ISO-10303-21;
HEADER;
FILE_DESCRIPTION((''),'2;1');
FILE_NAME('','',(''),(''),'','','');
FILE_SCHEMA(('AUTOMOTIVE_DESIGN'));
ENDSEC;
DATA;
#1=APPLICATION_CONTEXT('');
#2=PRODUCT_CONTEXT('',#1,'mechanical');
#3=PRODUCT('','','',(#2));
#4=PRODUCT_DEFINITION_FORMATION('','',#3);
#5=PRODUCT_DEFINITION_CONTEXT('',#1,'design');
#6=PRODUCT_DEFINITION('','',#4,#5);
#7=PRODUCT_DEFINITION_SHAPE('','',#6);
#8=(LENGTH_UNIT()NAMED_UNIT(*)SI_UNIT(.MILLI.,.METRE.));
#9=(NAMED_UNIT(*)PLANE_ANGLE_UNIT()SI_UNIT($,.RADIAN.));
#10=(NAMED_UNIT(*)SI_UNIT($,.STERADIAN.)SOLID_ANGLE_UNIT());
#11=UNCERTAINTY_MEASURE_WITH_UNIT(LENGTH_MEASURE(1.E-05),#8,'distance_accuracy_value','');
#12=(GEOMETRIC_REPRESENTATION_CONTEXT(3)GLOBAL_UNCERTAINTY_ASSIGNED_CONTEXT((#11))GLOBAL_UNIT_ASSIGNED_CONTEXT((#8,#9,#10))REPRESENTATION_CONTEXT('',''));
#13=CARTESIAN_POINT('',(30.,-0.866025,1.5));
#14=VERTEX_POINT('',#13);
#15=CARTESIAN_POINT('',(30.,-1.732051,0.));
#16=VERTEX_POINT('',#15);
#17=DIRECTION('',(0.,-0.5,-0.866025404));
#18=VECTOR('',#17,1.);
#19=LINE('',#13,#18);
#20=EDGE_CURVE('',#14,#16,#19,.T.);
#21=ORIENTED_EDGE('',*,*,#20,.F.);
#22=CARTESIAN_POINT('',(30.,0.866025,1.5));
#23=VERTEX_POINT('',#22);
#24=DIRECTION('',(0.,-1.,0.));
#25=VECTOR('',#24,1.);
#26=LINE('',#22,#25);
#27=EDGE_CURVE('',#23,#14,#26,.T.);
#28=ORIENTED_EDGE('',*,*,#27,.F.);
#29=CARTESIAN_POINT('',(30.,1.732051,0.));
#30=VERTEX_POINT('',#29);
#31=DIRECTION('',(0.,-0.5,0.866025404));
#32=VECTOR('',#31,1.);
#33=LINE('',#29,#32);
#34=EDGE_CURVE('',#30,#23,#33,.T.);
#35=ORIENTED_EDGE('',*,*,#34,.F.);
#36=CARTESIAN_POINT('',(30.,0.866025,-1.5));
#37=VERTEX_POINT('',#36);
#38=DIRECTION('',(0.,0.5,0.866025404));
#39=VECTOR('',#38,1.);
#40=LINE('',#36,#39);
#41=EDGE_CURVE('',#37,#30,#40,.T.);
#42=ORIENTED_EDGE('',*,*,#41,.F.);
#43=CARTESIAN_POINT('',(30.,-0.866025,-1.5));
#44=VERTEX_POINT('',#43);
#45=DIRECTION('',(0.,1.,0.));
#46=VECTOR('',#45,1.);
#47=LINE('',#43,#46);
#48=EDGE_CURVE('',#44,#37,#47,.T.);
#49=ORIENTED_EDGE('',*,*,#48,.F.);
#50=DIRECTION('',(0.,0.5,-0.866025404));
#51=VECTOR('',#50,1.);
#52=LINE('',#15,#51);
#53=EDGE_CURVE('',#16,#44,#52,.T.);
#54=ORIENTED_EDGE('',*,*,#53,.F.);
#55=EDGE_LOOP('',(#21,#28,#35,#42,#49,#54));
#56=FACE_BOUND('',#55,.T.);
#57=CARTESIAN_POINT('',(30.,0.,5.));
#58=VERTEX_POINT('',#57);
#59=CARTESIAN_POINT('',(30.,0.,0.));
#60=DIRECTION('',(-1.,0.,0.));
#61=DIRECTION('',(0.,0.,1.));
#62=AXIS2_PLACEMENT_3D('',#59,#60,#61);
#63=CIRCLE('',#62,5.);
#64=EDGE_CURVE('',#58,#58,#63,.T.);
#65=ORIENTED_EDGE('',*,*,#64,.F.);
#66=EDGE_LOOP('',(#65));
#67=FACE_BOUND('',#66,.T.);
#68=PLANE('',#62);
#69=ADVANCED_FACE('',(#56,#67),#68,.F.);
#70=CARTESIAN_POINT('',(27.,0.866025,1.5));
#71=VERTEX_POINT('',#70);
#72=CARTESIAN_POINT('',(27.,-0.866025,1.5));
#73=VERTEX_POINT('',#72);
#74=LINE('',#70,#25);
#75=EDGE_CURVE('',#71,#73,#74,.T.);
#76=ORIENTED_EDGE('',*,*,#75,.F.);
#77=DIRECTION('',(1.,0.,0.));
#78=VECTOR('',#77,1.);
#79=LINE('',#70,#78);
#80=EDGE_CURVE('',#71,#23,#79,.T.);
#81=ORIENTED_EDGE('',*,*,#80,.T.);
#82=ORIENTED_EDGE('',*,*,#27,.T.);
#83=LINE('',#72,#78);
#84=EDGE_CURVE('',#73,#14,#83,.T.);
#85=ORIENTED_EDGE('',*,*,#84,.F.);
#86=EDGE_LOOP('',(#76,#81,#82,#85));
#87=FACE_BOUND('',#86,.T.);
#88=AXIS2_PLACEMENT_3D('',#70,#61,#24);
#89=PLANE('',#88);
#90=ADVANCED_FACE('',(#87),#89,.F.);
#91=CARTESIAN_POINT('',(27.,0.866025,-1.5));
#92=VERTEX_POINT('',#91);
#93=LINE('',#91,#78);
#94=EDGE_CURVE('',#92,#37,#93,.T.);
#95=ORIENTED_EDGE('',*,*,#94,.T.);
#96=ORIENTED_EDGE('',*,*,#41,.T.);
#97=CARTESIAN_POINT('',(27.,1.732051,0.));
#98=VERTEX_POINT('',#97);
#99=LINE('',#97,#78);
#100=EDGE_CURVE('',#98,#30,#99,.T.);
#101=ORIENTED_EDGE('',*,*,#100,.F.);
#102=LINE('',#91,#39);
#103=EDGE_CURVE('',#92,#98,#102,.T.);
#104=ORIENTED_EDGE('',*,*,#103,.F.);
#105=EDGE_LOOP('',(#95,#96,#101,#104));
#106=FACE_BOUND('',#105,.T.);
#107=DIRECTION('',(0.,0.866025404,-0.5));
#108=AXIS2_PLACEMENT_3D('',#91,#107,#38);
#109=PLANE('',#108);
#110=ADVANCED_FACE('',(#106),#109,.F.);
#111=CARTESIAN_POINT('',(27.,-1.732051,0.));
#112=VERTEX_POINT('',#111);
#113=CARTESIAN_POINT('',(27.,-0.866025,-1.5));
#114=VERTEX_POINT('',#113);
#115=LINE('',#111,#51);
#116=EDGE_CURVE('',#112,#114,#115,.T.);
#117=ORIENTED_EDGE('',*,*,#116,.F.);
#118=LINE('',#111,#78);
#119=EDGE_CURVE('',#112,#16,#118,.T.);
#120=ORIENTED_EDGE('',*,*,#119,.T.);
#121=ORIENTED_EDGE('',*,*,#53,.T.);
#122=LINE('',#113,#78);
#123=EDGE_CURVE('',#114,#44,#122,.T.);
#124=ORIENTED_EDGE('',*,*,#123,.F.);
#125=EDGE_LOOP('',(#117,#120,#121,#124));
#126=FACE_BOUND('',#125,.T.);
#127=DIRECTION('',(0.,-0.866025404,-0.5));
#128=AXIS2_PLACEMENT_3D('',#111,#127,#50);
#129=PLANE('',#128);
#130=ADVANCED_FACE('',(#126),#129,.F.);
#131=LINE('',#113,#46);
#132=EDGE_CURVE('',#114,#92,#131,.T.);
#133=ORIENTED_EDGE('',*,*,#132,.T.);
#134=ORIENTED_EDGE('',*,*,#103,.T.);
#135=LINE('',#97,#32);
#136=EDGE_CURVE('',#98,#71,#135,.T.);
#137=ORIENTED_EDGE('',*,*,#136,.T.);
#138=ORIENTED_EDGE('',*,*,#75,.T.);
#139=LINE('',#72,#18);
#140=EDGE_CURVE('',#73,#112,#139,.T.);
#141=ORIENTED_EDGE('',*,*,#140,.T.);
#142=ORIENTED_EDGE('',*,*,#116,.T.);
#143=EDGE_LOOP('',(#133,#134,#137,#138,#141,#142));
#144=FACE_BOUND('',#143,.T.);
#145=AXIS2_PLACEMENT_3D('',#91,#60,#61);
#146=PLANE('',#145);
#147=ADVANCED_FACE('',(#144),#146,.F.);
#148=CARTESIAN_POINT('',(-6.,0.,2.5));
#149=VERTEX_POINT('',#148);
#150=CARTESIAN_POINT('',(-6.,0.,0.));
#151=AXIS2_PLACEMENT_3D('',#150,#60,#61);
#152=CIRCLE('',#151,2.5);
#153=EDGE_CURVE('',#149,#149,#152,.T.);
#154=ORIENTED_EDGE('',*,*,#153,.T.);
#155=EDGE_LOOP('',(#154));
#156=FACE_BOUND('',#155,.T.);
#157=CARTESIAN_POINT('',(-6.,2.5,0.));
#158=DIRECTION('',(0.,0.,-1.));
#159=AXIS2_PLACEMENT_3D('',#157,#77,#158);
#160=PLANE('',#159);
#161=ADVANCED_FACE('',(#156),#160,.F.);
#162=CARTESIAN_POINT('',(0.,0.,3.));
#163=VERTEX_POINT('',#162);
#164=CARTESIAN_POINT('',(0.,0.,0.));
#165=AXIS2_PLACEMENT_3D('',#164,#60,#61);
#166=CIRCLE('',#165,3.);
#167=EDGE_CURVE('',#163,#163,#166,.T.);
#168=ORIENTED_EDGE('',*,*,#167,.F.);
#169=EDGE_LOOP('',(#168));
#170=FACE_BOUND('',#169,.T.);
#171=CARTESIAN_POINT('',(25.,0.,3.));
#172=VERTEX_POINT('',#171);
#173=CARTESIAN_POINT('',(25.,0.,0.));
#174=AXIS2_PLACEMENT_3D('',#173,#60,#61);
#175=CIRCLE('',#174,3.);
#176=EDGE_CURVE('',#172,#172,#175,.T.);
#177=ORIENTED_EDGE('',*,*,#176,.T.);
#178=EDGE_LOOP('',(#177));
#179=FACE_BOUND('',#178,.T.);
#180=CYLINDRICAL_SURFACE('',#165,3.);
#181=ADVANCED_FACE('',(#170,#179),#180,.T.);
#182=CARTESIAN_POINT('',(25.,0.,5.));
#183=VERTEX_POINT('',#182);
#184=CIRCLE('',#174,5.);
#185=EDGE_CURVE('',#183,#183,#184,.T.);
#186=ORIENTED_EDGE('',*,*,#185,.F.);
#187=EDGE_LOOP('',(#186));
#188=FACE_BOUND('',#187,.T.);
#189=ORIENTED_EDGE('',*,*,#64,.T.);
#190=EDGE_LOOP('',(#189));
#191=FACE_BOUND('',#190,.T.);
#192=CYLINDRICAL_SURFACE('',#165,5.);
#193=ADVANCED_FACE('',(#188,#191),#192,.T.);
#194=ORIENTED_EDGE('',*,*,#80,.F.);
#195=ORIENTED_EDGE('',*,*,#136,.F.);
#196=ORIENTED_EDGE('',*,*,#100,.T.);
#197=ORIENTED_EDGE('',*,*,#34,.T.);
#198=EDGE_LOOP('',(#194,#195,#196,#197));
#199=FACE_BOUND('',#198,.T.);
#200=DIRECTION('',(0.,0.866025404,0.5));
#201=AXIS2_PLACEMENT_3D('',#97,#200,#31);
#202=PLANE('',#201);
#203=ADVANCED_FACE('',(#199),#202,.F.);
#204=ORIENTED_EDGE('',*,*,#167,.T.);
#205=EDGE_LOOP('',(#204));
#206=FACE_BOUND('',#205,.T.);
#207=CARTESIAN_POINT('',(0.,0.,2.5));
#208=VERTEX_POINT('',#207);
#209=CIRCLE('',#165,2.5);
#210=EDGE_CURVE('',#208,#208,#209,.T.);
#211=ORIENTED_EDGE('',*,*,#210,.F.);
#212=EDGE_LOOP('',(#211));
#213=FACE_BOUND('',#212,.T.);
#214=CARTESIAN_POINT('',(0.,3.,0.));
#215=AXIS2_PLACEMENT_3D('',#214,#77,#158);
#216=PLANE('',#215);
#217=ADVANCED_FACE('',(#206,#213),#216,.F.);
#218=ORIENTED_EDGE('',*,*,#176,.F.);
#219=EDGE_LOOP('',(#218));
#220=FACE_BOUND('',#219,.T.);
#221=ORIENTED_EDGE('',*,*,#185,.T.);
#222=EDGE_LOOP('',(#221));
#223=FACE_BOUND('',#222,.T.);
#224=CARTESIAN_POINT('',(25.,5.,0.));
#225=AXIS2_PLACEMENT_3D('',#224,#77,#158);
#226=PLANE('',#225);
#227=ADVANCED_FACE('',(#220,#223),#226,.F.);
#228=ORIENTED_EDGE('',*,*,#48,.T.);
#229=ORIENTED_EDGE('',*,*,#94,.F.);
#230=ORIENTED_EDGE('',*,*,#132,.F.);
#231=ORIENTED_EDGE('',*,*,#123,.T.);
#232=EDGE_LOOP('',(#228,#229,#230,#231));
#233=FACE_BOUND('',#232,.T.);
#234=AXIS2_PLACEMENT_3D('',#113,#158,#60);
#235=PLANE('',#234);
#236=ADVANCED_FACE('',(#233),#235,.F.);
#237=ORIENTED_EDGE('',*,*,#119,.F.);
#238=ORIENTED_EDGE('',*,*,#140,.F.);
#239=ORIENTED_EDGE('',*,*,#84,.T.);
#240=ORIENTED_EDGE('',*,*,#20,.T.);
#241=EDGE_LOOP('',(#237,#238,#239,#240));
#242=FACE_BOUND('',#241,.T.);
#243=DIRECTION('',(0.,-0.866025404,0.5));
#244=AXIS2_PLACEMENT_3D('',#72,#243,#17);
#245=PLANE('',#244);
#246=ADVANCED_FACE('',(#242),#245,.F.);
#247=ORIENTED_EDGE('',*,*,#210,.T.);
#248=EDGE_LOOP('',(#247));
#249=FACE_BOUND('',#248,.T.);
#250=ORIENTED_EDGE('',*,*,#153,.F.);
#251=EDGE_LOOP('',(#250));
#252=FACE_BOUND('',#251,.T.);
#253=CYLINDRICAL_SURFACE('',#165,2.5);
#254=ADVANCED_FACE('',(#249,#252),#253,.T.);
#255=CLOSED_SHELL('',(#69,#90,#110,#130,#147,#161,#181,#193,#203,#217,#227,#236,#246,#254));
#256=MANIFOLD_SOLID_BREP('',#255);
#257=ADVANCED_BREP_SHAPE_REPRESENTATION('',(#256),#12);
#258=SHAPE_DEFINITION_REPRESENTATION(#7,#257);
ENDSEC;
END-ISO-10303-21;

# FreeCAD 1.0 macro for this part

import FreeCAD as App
import Part
import Sketcher
Q = App.Units.Quantity


def add_polygon(sketch, points):
    """Adds a closed chain of lines whose ends are joined by coincident constraints."""
    first, n = sketch.GeometryCount, len(points)
    for a, b in zip(points, points[1:] + points[:1]):
        sketch.addGeometry(Part.LineSegment(App.Vector(*a, 0), App.Vector(*b, 0)), False)
    for i in range(n):
        sketch.addConstraint(Sketcher.Constraint("Coincident", first + i, 2, first + (i + 1) % n, 1))

doc = App.newDocument("Part")
body = doc.addObject("PartDesign::Body", "Body")

sketch1 = body.newObject("Sketcher::SketchObject", "Sketch")
sketch1.AttachmentSupport = (doc.getObject("XY_Plane"), [""])
sketch1.MapMode = "FlatFace"
add_polygon(sketch1, [(30, 0), (30, 5), (25, 5), (25, 3), (0, 3), (0, 2.5), (-6, 2.5), (-6, 0)])
sketch1.addConstraint(Sketcher.Constraint("Vertical", 0))
sketch1.addConstraint(Sketcher.Constraint("Horizontal", 1))
sketch1.addConstraint(Sketcher.Constraint("Vertical", 2))
sketch1.addConstraint(Sketcher.Constraint("Horizontal", 3))
sketch1.addConstraint(Sketcher.Constraint("Vertical", 4))
sketch1.addConstraint(Sketcher.Constraint("Horizontal", 5))
sketch1.addConstraint(Sketcher.Constraint("Vertical", 6))
sketch1.addConstraint(Sketcher.Constraint("Horizontal", 7))
sketch1.addConstraint(Sketcher.Constraint("PointOnObject", 3, 2, -2))
sketch1.addConstraint(Sketcher.Constraint("PointOnObject", 6, 2, -1))
sketch1.addConstraint(Sketcher.Constraint("Equal", 1, 0))
sketch1.addConstraint(Sketcher.Constraint("DistanceX", 1, 2, 1, 1, Q("5 mm")))
sketch1.addConstraint(Sketcher.Constraint("DistanceX", 3, 2, 3, 1, Q("25 mm")))
sketch1.addConstraint(Sketcher.Constraint("DistanceX", 5, 2, 5, 1, Q("6 mm")))
sketch1.addConstraint(Sketcher.Constraint("DistanceY", 2, 2, 2, 1, Q("2 mm")))
sketch1.addConstraint(Sketcher.Constraint("DistanceY", 4, 2, 4, 1, Q("0.5 mm")))
revolution = body.newObject("PartDesign::Revolution", "Revolution")
revolution.Profile = sketch1
revolution.ReferenceAxis = (sketch1, ["H_Axis"])
revolution.Angle = 360

sketch2 = body.newObject("Sketcher::SketchObject", "Sketch001")
sketch2.AttachmentSupport = (doc.getObject("YZ_Plane"), [""])
sketch2.MapMode = "FlatFace"
sketch2.AttachmentOffset = App.Placement(App.Vector(0, 0, 30), App.Rotation())
add_polygon(sketch2, [(1.732051, 0), (0.866025, 1.5), (-0.866025, 1.5), (-1.732051, 0), (-0.866025, -1.5), (0.866025, -1.5)])
sketch2.addConstraint(Sketcher.Constraint("Horizontal", 1))
sketch2.addConstraint(Sketcher.Constraint("Horizontal", 4))
sketch2.addConstraint(Sketcher.Constraint("Symmetric", 0, 2, 3, 2, -1, 1))
sketch2.addConstraint(Sketcher.Constraint("Symmetric", 2, 2, 5, 2, -1, 1))
sketch2.addConstraint(Sketcher.Constraint("PointOnObject", 2, 2, -1))
sketch2.addConstraint(Sketcher.Constraint("Parallel", 2, 5))
sketch2.addConstraint(Sketcher.Constraint("Vertical", 1, 2, 3, 2))
sketch2.addConstraint(Sketcher.Constraint("Angle", 0, Q("120 deg")))
sketch2.addConstraint(Sketcher.Constraint("DistanceY", 3, 2, 1, 2, Q("3 mm")))
sketch2.addConstraint(Sketcher.Constraint("DistanceX", 1, 2, 1, 1, Q("1.732051 mm")))
pocket1 = body.newObject("PartDesign::Pocket", "Pocket")
pocket1.Profile = sketch2
pocket1.Length = 3

doc.recompute()
